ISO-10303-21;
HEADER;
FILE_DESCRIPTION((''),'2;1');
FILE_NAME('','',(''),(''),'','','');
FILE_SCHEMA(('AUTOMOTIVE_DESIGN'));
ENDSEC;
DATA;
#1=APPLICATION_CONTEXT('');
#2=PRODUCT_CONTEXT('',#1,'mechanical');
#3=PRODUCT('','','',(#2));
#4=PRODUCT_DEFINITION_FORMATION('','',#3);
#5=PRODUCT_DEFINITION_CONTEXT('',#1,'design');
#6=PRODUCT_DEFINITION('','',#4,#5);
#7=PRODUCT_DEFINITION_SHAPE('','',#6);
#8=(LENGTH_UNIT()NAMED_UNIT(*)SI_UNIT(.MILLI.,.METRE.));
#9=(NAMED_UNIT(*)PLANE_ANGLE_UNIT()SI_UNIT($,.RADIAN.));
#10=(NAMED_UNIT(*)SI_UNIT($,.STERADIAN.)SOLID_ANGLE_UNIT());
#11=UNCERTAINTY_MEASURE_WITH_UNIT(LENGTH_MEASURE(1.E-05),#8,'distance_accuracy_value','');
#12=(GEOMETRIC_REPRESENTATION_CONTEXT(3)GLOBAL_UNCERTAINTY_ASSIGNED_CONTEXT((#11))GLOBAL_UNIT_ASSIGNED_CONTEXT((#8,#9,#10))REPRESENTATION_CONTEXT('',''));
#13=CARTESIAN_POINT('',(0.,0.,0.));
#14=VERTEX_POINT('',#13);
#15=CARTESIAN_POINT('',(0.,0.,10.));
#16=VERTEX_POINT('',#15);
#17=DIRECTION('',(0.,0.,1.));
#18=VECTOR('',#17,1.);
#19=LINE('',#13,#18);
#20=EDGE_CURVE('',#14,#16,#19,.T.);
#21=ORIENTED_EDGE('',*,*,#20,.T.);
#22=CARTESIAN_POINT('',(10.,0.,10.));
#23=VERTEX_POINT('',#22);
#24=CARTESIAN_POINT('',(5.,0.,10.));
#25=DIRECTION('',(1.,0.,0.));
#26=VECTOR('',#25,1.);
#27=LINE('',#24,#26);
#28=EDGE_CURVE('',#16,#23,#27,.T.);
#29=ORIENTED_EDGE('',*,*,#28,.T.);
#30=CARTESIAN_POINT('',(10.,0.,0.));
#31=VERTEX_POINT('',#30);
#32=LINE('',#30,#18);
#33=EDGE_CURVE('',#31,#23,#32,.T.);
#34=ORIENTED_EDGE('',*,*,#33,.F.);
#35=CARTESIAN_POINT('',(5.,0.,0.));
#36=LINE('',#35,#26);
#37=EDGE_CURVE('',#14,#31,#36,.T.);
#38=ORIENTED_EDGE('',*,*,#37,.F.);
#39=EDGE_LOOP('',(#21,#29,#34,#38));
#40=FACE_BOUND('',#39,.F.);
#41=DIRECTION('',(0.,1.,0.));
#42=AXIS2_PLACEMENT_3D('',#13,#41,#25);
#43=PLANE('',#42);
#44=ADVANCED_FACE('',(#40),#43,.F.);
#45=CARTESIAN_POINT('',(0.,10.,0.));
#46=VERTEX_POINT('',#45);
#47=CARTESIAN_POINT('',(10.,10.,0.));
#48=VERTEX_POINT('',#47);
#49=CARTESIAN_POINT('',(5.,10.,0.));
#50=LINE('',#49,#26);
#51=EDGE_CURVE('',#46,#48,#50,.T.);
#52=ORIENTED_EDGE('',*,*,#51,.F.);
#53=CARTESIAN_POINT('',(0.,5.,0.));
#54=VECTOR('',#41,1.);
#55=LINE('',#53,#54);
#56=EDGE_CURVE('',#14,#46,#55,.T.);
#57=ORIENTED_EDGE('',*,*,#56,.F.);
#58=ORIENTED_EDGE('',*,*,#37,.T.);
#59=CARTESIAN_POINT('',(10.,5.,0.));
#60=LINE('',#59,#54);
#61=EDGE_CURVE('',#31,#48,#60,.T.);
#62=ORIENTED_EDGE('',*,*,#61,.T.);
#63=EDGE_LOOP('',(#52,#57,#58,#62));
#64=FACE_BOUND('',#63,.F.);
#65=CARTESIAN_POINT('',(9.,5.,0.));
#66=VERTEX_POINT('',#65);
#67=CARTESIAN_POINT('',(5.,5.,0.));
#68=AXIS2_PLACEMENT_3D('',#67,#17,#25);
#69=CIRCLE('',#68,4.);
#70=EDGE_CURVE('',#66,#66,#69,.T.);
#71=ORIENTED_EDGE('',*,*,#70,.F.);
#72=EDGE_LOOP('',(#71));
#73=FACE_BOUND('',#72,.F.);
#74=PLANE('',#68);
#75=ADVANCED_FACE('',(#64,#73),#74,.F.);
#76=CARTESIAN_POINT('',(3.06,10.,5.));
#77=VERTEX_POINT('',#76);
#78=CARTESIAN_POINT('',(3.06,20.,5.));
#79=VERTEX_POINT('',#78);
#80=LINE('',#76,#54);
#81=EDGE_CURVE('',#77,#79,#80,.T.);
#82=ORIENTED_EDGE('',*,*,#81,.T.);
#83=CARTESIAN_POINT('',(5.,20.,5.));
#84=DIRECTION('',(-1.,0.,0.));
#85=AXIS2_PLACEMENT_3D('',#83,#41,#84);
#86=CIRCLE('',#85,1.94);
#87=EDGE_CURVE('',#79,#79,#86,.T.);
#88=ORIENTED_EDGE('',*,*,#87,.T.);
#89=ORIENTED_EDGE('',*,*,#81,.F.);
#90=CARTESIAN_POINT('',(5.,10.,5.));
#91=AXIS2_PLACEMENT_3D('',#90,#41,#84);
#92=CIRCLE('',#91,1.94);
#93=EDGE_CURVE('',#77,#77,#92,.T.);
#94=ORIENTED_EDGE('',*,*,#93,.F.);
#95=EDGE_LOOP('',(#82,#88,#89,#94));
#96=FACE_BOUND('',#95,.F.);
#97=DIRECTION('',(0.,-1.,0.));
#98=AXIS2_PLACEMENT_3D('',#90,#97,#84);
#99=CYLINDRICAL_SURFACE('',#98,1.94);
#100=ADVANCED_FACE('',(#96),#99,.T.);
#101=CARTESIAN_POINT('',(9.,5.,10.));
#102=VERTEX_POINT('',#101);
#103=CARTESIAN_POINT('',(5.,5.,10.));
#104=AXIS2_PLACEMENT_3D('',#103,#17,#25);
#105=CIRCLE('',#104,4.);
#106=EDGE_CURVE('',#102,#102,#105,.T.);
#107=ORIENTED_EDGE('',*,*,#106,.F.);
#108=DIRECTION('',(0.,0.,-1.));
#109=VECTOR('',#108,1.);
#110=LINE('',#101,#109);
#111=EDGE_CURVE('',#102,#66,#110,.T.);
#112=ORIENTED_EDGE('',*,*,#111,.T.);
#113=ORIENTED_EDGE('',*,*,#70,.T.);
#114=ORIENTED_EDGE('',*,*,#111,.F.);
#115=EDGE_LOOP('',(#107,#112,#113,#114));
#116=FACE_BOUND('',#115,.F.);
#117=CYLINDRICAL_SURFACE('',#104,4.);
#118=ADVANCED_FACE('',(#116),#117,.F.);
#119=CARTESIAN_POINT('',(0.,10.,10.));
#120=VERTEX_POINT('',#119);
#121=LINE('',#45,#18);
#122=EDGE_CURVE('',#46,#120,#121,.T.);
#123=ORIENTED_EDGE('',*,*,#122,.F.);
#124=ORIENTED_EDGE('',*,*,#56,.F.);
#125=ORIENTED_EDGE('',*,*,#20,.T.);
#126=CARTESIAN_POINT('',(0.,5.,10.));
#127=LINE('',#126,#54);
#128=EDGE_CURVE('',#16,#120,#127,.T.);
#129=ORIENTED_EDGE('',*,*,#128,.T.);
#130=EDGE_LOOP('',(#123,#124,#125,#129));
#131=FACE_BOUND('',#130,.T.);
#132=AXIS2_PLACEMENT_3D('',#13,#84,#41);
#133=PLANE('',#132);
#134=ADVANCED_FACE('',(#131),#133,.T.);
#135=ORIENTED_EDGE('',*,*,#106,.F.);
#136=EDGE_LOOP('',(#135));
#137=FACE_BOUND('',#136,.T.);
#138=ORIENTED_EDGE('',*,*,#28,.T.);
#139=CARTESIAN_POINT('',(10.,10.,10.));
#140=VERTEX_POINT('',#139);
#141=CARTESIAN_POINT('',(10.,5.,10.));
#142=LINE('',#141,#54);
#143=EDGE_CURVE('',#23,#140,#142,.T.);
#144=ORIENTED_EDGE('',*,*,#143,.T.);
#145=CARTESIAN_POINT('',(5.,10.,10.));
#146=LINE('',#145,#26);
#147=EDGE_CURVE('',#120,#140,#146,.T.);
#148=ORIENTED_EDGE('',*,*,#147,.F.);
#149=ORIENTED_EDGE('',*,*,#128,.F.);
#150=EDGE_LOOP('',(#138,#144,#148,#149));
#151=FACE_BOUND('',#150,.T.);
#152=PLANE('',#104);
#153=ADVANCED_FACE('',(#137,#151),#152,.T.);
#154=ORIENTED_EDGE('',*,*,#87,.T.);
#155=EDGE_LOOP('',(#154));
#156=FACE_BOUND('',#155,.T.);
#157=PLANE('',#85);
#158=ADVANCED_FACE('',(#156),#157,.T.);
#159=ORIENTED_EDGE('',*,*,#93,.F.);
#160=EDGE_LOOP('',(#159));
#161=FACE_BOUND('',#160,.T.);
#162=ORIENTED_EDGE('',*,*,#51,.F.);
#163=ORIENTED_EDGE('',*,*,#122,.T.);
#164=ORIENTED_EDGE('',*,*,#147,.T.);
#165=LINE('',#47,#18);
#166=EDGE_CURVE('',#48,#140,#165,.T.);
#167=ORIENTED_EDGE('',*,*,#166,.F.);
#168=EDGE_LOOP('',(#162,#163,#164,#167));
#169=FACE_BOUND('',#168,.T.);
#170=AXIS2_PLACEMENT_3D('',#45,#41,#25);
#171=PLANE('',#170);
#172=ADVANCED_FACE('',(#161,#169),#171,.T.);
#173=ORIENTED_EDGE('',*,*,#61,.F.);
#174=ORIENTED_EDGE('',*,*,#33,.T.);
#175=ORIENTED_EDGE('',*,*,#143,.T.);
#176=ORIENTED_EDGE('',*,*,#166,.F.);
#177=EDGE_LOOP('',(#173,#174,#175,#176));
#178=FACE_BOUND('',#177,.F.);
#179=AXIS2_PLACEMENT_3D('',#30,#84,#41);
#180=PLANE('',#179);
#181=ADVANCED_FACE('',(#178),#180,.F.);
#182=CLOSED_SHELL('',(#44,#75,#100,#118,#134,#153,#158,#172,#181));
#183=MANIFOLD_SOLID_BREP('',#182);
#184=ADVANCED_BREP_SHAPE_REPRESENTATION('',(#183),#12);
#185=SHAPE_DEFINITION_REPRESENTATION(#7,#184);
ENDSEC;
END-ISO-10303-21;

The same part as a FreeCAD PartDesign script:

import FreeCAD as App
import Part
import Sketcher


def add_polygon(sketch, points):
    """Adds a closed chain of lines whose ends are joined by coincident constraints."""
    first, n = sketch.GeometryCount, len(points)
    for a, b in zip(points, points[1:] + points[:1]):
        sketch.addGeometry(Part.LineSegment(App.Vector(*a, 0), App.Vector(*b, 0)), False)
    for i in range(n):
        sketch.addConstraint(Sketcher.Constraint("Coincident", first + i, 2, first + (i + 1) % n, 1))

doc = App.newDocument("Part")
body = doc.addObject("PartDesign::Body", "Body")

# Sketch on XY plane
sketch1 = body.newObject("Sketcher::SketchObject", "Sketch")
sketch1.AttachmentSupport = (doc.getObject("XY_Plane"), [""])
sketch1.MapMode = "FlatFace"
add_polygon(sketch1, [(0, 10), (0, 0), (10, 0), (10, 10)])  # lines 0-3
sketch1.addConstraint([
    Sketcher.Constraint("Vertical", 0),
    Sketcher.Constraint("Horizontal", 1),
    Sketcher.Constraint("Vertical", 2),
    Sketcher.Constraint("Horizontal", 3),
    Sketcher.Constraint("Coincident", 0, 2, -1, 1),
    Sketcher.Constraint("Equal", 3, 0),
    Sketcher.Constraint("DistanceX", 1, 1, 1, 2, 10.0),
])
pad1 = body.newObject("PartDesign::Pad", "Pad")
pad1.Profile = sketch1
pad1.Length = 10

# Sketch on XY plane
sketch2 = body.newObject("Sketcher::SketchObject", "Sketch001")
sketch2.AttachmentSupport = (doc.getObject("XY_Plane"), [""])
sketch2.MapMode = "FlatFace"
sketch2.AttachmentOffset = App.Placement(App.Vector(0, 0, 10), App.Rotation())
sketch2.addGeometry(Part.Circle(App.Vector(5, 5, 0), App.Vector(0, 0, 1), 4), False)
sketch2.addConstraint([
    Sketcher.Constraint("Diameter", 0, 8.0),
    Sketcher.Constraint("DistanceX", -1, 1, 0, 3, 5.0),
    Sketcher.Constraint("DistanceY", -1, 1, 0, 3, 5.0),
])
pocket1 = body.newObject("PartDesign::Pocket", "Pocket")
pocket1.Profile = sketch2
pocket1.Length = 15

# Sketch on XZ plane
sketch3 = body.newObject("Sketcher::SketchObject", "Sketch002")
sketch3.AttachmentSupport = (doc.getObject("XZ_Plane"), [""])
sketch3.MapMode = "FlatFace"
sketch3.AttachmentOffset = App.Placement(App.Vector(0, 0, -10), App.Rotation())
sketch3.addGeometry(Part.Circle(App.Vector(5, 5, 0), App.Vector(0, 0, 1), 1.94), False)
sketch3.addConstraint([
    Sketcher.Constraint("Diameter", 0, 3.88),
    Sketcher.Constraint("DistanceX", -1, 1, 0, 3, 5.0),
    Sketcher.Constraint("DistanceY", -1, 1, 0, 3, 5.0),
])
pad2 = body.newObject("PartDesign::Pad", "Pad001")
pad2.Profile = sketch3
pad2.Length = 10
pad2.Reversed = True

doc.recompute()
